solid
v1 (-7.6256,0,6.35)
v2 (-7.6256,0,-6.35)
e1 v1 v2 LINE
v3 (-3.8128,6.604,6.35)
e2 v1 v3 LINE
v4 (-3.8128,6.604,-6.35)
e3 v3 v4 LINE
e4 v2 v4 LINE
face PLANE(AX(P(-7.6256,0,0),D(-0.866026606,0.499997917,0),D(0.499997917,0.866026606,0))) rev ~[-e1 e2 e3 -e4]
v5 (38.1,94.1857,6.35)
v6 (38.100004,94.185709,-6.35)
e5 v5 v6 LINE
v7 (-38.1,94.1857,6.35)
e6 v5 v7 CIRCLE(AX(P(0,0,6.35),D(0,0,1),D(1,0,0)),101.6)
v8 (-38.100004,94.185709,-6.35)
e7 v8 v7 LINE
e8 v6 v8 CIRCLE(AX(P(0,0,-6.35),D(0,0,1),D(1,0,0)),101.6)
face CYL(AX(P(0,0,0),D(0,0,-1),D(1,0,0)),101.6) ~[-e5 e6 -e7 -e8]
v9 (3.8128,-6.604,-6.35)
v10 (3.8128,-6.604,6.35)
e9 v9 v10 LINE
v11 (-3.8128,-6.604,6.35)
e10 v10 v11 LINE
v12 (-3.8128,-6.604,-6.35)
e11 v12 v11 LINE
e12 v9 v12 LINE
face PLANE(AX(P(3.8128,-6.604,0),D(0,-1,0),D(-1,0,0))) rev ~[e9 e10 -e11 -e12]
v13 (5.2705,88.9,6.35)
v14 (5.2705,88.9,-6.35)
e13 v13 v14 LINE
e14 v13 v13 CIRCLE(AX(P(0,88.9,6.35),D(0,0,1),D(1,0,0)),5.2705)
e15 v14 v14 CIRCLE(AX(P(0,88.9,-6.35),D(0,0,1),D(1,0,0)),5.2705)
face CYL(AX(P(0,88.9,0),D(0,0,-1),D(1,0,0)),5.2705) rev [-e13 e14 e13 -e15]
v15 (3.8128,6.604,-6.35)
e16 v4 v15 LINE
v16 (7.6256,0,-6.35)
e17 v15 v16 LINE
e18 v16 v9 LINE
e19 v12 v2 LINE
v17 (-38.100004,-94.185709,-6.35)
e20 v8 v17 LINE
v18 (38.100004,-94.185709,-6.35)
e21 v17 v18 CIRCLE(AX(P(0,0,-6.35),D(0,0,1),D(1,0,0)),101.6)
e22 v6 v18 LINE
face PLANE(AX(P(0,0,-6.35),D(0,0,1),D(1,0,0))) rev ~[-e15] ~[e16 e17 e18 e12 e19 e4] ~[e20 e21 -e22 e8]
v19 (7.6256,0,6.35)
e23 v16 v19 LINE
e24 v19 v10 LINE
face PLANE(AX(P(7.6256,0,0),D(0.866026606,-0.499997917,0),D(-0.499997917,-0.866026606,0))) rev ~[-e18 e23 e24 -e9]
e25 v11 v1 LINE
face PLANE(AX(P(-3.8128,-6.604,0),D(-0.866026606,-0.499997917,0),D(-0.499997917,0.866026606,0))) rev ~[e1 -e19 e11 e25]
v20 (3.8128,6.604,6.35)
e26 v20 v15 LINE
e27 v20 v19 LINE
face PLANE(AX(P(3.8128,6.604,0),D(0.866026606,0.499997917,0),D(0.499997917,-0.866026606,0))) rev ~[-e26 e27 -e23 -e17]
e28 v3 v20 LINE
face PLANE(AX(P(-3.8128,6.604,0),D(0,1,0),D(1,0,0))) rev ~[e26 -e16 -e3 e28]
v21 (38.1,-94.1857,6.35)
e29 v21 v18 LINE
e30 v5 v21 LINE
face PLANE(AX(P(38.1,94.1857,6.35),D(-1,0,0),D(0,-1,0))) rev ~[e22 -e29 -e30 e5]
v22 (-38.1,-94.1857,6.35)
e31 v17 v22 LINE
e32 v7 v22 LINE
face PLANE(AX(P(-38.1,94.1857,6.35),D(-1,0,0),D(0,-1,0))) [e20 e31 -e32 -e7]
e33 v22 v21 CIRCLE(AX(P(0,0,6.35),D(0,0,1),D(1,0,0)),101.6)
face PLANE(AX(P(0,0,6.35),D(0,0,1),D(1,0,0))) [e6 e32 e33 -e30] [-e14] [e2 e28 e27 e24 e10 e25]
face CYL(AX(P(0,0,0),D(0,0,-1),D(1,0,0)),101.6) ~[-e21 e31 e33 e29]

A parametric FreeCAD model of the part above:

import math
import FreeCAD as App
import Part
import Sketcher
Q = App.Units.Quantity

doc = App.newDocument("Part")
params = doc.addObject("Spreadsheet::Sheet", "Params")
for row, (alias, value) in enumerate([
    ("sketch1_diameter", "8 in"),
    ("sketch1_diameter2", "0.415 in"),
    ("pad1_length", "0.5 in"),
    ("sketch2_radius", "4 in"),
], start=1):
    params.set(f"A{row}", alias)
    params.set(f"B{row}", "=" + value)
    params.setAlias(f"B{row}", alias)

body = doc.addObject("PartDesign::Body", "Body")

sketch1 = body.newObject("Sketcher::SketchObject", "Sketch")
sketch1.AttachmentSupport = (doc.getObject("XY_Plane"), [""])
sketch1.MapMode = "FlatFace"
sketch1.addGeometry([
    Part.Circle(App.Vector(0, 0, 0), App.Vector(0, 0, 1), 101.6),
    Part.LineSegment(App.Vector(3.8128, 6.604, 0), App.Vector(7.6256, 0, 0)),
    Part.LineSegment(App.Vector(7.6256, 0, 0), App.Vector(3.8128, -6.604, 0)),
    Part.LineSegment(App.Vector(3.8128, -6.604, 0), App.Vector(-3.8128, -6.604, 0)),
    Part.LineSegment(App.Vector(-3.8128, -6.604, 0), App.Vector(-7.6256, 0, 0)),
    Part.LineSegment(App.Vector(-7.6256, 0, 0), App.Vector(-3.8128, 6.604, 0)),
    Part.LineSegment(App.Vector(-3.8128, 6.604, 0), App.Vector(3.8128, 6.604, 0)),
    Part.Circle(App.Vector(0, 88.9, 0), App.Vector(0, 0, 1), 5.2705),
], False)
sketch1.addConstraint([
    Sketcher.Constraint("Coincident", 1, 2, 2, 1),
    Sketcher.Constraint("Coincident", 2, 2, 3, 1),
    Sketcher.Constraint("Coincident", 3, 2, 4, 1),
    Sketcher.Constraint("Coincident", 4, 2, 5, 1),
    Sketcher.Constraint("Coincident", 5, 2, 6, 1),
    Sketcher.Constraint("Coincident", 6, 2, 1, 1),
    Sketcher.Constraint("Horizontal", 3),
    Sketcher.Constraint("Horizontal", 6),
    Sketcher.Constraint("Coincident", 0, 3, -1, 1),
    Sketcher.Constraint("Symmetric", 1, 2, 4, 2, -1, 1),
    Sketcher.Constraint("Symmetric", 2, 2, 5, 2, -1, 1),
    Sketcher.Constraint("PointOnObject", 7, 3, -2),
    Sketcher.Constraint("PointOnObject", 1, 2, -1),
    Sketcher.Constraint("Parallel", 1, 4),
    Sketcher.Constraint("Vertical", 3, 2, 5, 2),
    Sketcher.Constraint("Diameter", 0, Q("8 in")),
    Sketcher.Constraint("Diameter", 7, Q("0.415 in")),
    Sketcher.Constraint("DistanceY", -1, 1, 7, 3, Q("3.5 in")),
    Sketcher.Constraint("DistanceY", 3, 2, 5, 2, Q("0.52 in")),
    Sketcher.Constraint("Angle", 1, Q("-60.0001 deg")),
    Sketcher.Constraint("DistanceX", 3, 2, 3, 1, 7.6256),
])
sketch1.setExpression("Constraints[15]", "Params.sketch1_diameter")
sketch1.setExpression("Constraints[16]", "Params.sketch1_diameter2")
pad1 = body.newObject("PartDesign::Pad", "Pad")
pad1.Profile = sketch1
pad1.setExpression("Length", "Params.pad1_length")
pad1.Midplane = True

sketch2 = body.newObject("Sketcher::SketchObject", "Sketch001")
sketch2.AttachmentSupport = (doc.getObject("XY_Plane"), [""])
sketch2.MapMode = "FlatFace"
sketch2.AttachmentOffset = App.Placement(App.Vector(0, 0, 0.25 * 25.4), App.Rotation())
sketch2.addGeometry([
    Part.ArcOfCircle(Part.Circle(App.Vector(0, 0, 0), App.Vector(0, 0, 1), 101.6), math.radians(-67.975683), math.radians(67.975683)),
    Part.LineSegment(App.Vector(38.1, -94.1857, 0), App.Vector(38.1, 94.1857, 0)),
    Part.LineSegment(App.Vector(-38.1, -94.1857, 0), App.Vector(-38.1, 94.1857, 0)),
    Part.ArcOfCircle(Part.Circle(App.Vector(0, 0, 0), App.Vector(0, 0, 1), 101.6), math.radians(112.024317), math.radians(247.975683)),
], False)
sketch2.addConstraint([
    Sketcher.Constraint("Coincident", 0, 1, 1, 1),
    Sketcher.Constraint("Coincident", 1, 2, 0, 2),
    Sketcher.Constraint("Coincident", 2, 1, 3, 2),
    Sketcher.Constraint("Coincident", 3, 1, 2, 2),
    Sketcher.Constraint("Vertical", 1),
    Sketcher.Constraint("Vertical", 2),
    Sketcher.Constraint("Coincident", 0, 3, -1, 1),
    Sketcher.Constraint("Coincident", 3, 3, -1, 1),
    Sketcher.Constraint("Equal", 0, 3),
    Sketcher.Constraint("Horizontal", 0, 1, 2, 1),
    Sketcher.Constraint("Radius", 0, Q("4 in")),
    Sketcher.Constraint("DistanceX", -1, 1, 0, 1, Q("1.5 in")),
])
sketch2.setExpression("Constraints[10]", "Params.sketch2_radius")
pocket1 = body.newObject("PartDesign::Pocket", "Pocket")
pocket1.Profile = sketch2
pocket1.Type = "ThroughAll"

doc.recompute()
